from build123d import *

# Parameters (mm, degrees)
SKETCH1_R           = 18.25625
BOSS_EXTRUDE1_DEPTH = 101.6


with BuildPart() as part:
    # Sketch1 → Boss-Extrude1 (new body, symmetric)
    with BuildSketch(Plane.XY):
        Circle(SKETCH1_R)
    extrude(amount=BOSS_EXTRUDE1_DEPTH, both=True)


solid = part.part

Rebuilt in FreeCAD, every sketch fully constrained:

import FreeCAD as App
import Part
import Sketcher
Q = App.Units.Quantity

doc = App.newDocument("Part")
body = doc.addObject("PartDesign::Body", "Body")

# Sketch on XY plane
sketch1 = body.newObject("Sketcher::SketchObject", "Sketch")
sketch1.AttachmentSupport = (doc.getObject("XY_Plane"), [""])
sketch1.MapMode = "FlatFace"
sketch1.addGeometry(Part.Circle(App.Vector(0, 0, 0), App.Vector(0, 0, 1), 18.25625), False)
sketch1.addConstraint([
    Sketcher.Constraint("Coincident", 0, 3, -1, 1),
    Sketcher.Constraint("Diameter", 0, Q("1.4375 in")),
])
pad1 = body.newObject("PartDesign::Pad", "Pad")
pad1.Profile = sketch1
pad1.Length = Q("8 in")
pad1.Midplane = True

doc.recompute()
